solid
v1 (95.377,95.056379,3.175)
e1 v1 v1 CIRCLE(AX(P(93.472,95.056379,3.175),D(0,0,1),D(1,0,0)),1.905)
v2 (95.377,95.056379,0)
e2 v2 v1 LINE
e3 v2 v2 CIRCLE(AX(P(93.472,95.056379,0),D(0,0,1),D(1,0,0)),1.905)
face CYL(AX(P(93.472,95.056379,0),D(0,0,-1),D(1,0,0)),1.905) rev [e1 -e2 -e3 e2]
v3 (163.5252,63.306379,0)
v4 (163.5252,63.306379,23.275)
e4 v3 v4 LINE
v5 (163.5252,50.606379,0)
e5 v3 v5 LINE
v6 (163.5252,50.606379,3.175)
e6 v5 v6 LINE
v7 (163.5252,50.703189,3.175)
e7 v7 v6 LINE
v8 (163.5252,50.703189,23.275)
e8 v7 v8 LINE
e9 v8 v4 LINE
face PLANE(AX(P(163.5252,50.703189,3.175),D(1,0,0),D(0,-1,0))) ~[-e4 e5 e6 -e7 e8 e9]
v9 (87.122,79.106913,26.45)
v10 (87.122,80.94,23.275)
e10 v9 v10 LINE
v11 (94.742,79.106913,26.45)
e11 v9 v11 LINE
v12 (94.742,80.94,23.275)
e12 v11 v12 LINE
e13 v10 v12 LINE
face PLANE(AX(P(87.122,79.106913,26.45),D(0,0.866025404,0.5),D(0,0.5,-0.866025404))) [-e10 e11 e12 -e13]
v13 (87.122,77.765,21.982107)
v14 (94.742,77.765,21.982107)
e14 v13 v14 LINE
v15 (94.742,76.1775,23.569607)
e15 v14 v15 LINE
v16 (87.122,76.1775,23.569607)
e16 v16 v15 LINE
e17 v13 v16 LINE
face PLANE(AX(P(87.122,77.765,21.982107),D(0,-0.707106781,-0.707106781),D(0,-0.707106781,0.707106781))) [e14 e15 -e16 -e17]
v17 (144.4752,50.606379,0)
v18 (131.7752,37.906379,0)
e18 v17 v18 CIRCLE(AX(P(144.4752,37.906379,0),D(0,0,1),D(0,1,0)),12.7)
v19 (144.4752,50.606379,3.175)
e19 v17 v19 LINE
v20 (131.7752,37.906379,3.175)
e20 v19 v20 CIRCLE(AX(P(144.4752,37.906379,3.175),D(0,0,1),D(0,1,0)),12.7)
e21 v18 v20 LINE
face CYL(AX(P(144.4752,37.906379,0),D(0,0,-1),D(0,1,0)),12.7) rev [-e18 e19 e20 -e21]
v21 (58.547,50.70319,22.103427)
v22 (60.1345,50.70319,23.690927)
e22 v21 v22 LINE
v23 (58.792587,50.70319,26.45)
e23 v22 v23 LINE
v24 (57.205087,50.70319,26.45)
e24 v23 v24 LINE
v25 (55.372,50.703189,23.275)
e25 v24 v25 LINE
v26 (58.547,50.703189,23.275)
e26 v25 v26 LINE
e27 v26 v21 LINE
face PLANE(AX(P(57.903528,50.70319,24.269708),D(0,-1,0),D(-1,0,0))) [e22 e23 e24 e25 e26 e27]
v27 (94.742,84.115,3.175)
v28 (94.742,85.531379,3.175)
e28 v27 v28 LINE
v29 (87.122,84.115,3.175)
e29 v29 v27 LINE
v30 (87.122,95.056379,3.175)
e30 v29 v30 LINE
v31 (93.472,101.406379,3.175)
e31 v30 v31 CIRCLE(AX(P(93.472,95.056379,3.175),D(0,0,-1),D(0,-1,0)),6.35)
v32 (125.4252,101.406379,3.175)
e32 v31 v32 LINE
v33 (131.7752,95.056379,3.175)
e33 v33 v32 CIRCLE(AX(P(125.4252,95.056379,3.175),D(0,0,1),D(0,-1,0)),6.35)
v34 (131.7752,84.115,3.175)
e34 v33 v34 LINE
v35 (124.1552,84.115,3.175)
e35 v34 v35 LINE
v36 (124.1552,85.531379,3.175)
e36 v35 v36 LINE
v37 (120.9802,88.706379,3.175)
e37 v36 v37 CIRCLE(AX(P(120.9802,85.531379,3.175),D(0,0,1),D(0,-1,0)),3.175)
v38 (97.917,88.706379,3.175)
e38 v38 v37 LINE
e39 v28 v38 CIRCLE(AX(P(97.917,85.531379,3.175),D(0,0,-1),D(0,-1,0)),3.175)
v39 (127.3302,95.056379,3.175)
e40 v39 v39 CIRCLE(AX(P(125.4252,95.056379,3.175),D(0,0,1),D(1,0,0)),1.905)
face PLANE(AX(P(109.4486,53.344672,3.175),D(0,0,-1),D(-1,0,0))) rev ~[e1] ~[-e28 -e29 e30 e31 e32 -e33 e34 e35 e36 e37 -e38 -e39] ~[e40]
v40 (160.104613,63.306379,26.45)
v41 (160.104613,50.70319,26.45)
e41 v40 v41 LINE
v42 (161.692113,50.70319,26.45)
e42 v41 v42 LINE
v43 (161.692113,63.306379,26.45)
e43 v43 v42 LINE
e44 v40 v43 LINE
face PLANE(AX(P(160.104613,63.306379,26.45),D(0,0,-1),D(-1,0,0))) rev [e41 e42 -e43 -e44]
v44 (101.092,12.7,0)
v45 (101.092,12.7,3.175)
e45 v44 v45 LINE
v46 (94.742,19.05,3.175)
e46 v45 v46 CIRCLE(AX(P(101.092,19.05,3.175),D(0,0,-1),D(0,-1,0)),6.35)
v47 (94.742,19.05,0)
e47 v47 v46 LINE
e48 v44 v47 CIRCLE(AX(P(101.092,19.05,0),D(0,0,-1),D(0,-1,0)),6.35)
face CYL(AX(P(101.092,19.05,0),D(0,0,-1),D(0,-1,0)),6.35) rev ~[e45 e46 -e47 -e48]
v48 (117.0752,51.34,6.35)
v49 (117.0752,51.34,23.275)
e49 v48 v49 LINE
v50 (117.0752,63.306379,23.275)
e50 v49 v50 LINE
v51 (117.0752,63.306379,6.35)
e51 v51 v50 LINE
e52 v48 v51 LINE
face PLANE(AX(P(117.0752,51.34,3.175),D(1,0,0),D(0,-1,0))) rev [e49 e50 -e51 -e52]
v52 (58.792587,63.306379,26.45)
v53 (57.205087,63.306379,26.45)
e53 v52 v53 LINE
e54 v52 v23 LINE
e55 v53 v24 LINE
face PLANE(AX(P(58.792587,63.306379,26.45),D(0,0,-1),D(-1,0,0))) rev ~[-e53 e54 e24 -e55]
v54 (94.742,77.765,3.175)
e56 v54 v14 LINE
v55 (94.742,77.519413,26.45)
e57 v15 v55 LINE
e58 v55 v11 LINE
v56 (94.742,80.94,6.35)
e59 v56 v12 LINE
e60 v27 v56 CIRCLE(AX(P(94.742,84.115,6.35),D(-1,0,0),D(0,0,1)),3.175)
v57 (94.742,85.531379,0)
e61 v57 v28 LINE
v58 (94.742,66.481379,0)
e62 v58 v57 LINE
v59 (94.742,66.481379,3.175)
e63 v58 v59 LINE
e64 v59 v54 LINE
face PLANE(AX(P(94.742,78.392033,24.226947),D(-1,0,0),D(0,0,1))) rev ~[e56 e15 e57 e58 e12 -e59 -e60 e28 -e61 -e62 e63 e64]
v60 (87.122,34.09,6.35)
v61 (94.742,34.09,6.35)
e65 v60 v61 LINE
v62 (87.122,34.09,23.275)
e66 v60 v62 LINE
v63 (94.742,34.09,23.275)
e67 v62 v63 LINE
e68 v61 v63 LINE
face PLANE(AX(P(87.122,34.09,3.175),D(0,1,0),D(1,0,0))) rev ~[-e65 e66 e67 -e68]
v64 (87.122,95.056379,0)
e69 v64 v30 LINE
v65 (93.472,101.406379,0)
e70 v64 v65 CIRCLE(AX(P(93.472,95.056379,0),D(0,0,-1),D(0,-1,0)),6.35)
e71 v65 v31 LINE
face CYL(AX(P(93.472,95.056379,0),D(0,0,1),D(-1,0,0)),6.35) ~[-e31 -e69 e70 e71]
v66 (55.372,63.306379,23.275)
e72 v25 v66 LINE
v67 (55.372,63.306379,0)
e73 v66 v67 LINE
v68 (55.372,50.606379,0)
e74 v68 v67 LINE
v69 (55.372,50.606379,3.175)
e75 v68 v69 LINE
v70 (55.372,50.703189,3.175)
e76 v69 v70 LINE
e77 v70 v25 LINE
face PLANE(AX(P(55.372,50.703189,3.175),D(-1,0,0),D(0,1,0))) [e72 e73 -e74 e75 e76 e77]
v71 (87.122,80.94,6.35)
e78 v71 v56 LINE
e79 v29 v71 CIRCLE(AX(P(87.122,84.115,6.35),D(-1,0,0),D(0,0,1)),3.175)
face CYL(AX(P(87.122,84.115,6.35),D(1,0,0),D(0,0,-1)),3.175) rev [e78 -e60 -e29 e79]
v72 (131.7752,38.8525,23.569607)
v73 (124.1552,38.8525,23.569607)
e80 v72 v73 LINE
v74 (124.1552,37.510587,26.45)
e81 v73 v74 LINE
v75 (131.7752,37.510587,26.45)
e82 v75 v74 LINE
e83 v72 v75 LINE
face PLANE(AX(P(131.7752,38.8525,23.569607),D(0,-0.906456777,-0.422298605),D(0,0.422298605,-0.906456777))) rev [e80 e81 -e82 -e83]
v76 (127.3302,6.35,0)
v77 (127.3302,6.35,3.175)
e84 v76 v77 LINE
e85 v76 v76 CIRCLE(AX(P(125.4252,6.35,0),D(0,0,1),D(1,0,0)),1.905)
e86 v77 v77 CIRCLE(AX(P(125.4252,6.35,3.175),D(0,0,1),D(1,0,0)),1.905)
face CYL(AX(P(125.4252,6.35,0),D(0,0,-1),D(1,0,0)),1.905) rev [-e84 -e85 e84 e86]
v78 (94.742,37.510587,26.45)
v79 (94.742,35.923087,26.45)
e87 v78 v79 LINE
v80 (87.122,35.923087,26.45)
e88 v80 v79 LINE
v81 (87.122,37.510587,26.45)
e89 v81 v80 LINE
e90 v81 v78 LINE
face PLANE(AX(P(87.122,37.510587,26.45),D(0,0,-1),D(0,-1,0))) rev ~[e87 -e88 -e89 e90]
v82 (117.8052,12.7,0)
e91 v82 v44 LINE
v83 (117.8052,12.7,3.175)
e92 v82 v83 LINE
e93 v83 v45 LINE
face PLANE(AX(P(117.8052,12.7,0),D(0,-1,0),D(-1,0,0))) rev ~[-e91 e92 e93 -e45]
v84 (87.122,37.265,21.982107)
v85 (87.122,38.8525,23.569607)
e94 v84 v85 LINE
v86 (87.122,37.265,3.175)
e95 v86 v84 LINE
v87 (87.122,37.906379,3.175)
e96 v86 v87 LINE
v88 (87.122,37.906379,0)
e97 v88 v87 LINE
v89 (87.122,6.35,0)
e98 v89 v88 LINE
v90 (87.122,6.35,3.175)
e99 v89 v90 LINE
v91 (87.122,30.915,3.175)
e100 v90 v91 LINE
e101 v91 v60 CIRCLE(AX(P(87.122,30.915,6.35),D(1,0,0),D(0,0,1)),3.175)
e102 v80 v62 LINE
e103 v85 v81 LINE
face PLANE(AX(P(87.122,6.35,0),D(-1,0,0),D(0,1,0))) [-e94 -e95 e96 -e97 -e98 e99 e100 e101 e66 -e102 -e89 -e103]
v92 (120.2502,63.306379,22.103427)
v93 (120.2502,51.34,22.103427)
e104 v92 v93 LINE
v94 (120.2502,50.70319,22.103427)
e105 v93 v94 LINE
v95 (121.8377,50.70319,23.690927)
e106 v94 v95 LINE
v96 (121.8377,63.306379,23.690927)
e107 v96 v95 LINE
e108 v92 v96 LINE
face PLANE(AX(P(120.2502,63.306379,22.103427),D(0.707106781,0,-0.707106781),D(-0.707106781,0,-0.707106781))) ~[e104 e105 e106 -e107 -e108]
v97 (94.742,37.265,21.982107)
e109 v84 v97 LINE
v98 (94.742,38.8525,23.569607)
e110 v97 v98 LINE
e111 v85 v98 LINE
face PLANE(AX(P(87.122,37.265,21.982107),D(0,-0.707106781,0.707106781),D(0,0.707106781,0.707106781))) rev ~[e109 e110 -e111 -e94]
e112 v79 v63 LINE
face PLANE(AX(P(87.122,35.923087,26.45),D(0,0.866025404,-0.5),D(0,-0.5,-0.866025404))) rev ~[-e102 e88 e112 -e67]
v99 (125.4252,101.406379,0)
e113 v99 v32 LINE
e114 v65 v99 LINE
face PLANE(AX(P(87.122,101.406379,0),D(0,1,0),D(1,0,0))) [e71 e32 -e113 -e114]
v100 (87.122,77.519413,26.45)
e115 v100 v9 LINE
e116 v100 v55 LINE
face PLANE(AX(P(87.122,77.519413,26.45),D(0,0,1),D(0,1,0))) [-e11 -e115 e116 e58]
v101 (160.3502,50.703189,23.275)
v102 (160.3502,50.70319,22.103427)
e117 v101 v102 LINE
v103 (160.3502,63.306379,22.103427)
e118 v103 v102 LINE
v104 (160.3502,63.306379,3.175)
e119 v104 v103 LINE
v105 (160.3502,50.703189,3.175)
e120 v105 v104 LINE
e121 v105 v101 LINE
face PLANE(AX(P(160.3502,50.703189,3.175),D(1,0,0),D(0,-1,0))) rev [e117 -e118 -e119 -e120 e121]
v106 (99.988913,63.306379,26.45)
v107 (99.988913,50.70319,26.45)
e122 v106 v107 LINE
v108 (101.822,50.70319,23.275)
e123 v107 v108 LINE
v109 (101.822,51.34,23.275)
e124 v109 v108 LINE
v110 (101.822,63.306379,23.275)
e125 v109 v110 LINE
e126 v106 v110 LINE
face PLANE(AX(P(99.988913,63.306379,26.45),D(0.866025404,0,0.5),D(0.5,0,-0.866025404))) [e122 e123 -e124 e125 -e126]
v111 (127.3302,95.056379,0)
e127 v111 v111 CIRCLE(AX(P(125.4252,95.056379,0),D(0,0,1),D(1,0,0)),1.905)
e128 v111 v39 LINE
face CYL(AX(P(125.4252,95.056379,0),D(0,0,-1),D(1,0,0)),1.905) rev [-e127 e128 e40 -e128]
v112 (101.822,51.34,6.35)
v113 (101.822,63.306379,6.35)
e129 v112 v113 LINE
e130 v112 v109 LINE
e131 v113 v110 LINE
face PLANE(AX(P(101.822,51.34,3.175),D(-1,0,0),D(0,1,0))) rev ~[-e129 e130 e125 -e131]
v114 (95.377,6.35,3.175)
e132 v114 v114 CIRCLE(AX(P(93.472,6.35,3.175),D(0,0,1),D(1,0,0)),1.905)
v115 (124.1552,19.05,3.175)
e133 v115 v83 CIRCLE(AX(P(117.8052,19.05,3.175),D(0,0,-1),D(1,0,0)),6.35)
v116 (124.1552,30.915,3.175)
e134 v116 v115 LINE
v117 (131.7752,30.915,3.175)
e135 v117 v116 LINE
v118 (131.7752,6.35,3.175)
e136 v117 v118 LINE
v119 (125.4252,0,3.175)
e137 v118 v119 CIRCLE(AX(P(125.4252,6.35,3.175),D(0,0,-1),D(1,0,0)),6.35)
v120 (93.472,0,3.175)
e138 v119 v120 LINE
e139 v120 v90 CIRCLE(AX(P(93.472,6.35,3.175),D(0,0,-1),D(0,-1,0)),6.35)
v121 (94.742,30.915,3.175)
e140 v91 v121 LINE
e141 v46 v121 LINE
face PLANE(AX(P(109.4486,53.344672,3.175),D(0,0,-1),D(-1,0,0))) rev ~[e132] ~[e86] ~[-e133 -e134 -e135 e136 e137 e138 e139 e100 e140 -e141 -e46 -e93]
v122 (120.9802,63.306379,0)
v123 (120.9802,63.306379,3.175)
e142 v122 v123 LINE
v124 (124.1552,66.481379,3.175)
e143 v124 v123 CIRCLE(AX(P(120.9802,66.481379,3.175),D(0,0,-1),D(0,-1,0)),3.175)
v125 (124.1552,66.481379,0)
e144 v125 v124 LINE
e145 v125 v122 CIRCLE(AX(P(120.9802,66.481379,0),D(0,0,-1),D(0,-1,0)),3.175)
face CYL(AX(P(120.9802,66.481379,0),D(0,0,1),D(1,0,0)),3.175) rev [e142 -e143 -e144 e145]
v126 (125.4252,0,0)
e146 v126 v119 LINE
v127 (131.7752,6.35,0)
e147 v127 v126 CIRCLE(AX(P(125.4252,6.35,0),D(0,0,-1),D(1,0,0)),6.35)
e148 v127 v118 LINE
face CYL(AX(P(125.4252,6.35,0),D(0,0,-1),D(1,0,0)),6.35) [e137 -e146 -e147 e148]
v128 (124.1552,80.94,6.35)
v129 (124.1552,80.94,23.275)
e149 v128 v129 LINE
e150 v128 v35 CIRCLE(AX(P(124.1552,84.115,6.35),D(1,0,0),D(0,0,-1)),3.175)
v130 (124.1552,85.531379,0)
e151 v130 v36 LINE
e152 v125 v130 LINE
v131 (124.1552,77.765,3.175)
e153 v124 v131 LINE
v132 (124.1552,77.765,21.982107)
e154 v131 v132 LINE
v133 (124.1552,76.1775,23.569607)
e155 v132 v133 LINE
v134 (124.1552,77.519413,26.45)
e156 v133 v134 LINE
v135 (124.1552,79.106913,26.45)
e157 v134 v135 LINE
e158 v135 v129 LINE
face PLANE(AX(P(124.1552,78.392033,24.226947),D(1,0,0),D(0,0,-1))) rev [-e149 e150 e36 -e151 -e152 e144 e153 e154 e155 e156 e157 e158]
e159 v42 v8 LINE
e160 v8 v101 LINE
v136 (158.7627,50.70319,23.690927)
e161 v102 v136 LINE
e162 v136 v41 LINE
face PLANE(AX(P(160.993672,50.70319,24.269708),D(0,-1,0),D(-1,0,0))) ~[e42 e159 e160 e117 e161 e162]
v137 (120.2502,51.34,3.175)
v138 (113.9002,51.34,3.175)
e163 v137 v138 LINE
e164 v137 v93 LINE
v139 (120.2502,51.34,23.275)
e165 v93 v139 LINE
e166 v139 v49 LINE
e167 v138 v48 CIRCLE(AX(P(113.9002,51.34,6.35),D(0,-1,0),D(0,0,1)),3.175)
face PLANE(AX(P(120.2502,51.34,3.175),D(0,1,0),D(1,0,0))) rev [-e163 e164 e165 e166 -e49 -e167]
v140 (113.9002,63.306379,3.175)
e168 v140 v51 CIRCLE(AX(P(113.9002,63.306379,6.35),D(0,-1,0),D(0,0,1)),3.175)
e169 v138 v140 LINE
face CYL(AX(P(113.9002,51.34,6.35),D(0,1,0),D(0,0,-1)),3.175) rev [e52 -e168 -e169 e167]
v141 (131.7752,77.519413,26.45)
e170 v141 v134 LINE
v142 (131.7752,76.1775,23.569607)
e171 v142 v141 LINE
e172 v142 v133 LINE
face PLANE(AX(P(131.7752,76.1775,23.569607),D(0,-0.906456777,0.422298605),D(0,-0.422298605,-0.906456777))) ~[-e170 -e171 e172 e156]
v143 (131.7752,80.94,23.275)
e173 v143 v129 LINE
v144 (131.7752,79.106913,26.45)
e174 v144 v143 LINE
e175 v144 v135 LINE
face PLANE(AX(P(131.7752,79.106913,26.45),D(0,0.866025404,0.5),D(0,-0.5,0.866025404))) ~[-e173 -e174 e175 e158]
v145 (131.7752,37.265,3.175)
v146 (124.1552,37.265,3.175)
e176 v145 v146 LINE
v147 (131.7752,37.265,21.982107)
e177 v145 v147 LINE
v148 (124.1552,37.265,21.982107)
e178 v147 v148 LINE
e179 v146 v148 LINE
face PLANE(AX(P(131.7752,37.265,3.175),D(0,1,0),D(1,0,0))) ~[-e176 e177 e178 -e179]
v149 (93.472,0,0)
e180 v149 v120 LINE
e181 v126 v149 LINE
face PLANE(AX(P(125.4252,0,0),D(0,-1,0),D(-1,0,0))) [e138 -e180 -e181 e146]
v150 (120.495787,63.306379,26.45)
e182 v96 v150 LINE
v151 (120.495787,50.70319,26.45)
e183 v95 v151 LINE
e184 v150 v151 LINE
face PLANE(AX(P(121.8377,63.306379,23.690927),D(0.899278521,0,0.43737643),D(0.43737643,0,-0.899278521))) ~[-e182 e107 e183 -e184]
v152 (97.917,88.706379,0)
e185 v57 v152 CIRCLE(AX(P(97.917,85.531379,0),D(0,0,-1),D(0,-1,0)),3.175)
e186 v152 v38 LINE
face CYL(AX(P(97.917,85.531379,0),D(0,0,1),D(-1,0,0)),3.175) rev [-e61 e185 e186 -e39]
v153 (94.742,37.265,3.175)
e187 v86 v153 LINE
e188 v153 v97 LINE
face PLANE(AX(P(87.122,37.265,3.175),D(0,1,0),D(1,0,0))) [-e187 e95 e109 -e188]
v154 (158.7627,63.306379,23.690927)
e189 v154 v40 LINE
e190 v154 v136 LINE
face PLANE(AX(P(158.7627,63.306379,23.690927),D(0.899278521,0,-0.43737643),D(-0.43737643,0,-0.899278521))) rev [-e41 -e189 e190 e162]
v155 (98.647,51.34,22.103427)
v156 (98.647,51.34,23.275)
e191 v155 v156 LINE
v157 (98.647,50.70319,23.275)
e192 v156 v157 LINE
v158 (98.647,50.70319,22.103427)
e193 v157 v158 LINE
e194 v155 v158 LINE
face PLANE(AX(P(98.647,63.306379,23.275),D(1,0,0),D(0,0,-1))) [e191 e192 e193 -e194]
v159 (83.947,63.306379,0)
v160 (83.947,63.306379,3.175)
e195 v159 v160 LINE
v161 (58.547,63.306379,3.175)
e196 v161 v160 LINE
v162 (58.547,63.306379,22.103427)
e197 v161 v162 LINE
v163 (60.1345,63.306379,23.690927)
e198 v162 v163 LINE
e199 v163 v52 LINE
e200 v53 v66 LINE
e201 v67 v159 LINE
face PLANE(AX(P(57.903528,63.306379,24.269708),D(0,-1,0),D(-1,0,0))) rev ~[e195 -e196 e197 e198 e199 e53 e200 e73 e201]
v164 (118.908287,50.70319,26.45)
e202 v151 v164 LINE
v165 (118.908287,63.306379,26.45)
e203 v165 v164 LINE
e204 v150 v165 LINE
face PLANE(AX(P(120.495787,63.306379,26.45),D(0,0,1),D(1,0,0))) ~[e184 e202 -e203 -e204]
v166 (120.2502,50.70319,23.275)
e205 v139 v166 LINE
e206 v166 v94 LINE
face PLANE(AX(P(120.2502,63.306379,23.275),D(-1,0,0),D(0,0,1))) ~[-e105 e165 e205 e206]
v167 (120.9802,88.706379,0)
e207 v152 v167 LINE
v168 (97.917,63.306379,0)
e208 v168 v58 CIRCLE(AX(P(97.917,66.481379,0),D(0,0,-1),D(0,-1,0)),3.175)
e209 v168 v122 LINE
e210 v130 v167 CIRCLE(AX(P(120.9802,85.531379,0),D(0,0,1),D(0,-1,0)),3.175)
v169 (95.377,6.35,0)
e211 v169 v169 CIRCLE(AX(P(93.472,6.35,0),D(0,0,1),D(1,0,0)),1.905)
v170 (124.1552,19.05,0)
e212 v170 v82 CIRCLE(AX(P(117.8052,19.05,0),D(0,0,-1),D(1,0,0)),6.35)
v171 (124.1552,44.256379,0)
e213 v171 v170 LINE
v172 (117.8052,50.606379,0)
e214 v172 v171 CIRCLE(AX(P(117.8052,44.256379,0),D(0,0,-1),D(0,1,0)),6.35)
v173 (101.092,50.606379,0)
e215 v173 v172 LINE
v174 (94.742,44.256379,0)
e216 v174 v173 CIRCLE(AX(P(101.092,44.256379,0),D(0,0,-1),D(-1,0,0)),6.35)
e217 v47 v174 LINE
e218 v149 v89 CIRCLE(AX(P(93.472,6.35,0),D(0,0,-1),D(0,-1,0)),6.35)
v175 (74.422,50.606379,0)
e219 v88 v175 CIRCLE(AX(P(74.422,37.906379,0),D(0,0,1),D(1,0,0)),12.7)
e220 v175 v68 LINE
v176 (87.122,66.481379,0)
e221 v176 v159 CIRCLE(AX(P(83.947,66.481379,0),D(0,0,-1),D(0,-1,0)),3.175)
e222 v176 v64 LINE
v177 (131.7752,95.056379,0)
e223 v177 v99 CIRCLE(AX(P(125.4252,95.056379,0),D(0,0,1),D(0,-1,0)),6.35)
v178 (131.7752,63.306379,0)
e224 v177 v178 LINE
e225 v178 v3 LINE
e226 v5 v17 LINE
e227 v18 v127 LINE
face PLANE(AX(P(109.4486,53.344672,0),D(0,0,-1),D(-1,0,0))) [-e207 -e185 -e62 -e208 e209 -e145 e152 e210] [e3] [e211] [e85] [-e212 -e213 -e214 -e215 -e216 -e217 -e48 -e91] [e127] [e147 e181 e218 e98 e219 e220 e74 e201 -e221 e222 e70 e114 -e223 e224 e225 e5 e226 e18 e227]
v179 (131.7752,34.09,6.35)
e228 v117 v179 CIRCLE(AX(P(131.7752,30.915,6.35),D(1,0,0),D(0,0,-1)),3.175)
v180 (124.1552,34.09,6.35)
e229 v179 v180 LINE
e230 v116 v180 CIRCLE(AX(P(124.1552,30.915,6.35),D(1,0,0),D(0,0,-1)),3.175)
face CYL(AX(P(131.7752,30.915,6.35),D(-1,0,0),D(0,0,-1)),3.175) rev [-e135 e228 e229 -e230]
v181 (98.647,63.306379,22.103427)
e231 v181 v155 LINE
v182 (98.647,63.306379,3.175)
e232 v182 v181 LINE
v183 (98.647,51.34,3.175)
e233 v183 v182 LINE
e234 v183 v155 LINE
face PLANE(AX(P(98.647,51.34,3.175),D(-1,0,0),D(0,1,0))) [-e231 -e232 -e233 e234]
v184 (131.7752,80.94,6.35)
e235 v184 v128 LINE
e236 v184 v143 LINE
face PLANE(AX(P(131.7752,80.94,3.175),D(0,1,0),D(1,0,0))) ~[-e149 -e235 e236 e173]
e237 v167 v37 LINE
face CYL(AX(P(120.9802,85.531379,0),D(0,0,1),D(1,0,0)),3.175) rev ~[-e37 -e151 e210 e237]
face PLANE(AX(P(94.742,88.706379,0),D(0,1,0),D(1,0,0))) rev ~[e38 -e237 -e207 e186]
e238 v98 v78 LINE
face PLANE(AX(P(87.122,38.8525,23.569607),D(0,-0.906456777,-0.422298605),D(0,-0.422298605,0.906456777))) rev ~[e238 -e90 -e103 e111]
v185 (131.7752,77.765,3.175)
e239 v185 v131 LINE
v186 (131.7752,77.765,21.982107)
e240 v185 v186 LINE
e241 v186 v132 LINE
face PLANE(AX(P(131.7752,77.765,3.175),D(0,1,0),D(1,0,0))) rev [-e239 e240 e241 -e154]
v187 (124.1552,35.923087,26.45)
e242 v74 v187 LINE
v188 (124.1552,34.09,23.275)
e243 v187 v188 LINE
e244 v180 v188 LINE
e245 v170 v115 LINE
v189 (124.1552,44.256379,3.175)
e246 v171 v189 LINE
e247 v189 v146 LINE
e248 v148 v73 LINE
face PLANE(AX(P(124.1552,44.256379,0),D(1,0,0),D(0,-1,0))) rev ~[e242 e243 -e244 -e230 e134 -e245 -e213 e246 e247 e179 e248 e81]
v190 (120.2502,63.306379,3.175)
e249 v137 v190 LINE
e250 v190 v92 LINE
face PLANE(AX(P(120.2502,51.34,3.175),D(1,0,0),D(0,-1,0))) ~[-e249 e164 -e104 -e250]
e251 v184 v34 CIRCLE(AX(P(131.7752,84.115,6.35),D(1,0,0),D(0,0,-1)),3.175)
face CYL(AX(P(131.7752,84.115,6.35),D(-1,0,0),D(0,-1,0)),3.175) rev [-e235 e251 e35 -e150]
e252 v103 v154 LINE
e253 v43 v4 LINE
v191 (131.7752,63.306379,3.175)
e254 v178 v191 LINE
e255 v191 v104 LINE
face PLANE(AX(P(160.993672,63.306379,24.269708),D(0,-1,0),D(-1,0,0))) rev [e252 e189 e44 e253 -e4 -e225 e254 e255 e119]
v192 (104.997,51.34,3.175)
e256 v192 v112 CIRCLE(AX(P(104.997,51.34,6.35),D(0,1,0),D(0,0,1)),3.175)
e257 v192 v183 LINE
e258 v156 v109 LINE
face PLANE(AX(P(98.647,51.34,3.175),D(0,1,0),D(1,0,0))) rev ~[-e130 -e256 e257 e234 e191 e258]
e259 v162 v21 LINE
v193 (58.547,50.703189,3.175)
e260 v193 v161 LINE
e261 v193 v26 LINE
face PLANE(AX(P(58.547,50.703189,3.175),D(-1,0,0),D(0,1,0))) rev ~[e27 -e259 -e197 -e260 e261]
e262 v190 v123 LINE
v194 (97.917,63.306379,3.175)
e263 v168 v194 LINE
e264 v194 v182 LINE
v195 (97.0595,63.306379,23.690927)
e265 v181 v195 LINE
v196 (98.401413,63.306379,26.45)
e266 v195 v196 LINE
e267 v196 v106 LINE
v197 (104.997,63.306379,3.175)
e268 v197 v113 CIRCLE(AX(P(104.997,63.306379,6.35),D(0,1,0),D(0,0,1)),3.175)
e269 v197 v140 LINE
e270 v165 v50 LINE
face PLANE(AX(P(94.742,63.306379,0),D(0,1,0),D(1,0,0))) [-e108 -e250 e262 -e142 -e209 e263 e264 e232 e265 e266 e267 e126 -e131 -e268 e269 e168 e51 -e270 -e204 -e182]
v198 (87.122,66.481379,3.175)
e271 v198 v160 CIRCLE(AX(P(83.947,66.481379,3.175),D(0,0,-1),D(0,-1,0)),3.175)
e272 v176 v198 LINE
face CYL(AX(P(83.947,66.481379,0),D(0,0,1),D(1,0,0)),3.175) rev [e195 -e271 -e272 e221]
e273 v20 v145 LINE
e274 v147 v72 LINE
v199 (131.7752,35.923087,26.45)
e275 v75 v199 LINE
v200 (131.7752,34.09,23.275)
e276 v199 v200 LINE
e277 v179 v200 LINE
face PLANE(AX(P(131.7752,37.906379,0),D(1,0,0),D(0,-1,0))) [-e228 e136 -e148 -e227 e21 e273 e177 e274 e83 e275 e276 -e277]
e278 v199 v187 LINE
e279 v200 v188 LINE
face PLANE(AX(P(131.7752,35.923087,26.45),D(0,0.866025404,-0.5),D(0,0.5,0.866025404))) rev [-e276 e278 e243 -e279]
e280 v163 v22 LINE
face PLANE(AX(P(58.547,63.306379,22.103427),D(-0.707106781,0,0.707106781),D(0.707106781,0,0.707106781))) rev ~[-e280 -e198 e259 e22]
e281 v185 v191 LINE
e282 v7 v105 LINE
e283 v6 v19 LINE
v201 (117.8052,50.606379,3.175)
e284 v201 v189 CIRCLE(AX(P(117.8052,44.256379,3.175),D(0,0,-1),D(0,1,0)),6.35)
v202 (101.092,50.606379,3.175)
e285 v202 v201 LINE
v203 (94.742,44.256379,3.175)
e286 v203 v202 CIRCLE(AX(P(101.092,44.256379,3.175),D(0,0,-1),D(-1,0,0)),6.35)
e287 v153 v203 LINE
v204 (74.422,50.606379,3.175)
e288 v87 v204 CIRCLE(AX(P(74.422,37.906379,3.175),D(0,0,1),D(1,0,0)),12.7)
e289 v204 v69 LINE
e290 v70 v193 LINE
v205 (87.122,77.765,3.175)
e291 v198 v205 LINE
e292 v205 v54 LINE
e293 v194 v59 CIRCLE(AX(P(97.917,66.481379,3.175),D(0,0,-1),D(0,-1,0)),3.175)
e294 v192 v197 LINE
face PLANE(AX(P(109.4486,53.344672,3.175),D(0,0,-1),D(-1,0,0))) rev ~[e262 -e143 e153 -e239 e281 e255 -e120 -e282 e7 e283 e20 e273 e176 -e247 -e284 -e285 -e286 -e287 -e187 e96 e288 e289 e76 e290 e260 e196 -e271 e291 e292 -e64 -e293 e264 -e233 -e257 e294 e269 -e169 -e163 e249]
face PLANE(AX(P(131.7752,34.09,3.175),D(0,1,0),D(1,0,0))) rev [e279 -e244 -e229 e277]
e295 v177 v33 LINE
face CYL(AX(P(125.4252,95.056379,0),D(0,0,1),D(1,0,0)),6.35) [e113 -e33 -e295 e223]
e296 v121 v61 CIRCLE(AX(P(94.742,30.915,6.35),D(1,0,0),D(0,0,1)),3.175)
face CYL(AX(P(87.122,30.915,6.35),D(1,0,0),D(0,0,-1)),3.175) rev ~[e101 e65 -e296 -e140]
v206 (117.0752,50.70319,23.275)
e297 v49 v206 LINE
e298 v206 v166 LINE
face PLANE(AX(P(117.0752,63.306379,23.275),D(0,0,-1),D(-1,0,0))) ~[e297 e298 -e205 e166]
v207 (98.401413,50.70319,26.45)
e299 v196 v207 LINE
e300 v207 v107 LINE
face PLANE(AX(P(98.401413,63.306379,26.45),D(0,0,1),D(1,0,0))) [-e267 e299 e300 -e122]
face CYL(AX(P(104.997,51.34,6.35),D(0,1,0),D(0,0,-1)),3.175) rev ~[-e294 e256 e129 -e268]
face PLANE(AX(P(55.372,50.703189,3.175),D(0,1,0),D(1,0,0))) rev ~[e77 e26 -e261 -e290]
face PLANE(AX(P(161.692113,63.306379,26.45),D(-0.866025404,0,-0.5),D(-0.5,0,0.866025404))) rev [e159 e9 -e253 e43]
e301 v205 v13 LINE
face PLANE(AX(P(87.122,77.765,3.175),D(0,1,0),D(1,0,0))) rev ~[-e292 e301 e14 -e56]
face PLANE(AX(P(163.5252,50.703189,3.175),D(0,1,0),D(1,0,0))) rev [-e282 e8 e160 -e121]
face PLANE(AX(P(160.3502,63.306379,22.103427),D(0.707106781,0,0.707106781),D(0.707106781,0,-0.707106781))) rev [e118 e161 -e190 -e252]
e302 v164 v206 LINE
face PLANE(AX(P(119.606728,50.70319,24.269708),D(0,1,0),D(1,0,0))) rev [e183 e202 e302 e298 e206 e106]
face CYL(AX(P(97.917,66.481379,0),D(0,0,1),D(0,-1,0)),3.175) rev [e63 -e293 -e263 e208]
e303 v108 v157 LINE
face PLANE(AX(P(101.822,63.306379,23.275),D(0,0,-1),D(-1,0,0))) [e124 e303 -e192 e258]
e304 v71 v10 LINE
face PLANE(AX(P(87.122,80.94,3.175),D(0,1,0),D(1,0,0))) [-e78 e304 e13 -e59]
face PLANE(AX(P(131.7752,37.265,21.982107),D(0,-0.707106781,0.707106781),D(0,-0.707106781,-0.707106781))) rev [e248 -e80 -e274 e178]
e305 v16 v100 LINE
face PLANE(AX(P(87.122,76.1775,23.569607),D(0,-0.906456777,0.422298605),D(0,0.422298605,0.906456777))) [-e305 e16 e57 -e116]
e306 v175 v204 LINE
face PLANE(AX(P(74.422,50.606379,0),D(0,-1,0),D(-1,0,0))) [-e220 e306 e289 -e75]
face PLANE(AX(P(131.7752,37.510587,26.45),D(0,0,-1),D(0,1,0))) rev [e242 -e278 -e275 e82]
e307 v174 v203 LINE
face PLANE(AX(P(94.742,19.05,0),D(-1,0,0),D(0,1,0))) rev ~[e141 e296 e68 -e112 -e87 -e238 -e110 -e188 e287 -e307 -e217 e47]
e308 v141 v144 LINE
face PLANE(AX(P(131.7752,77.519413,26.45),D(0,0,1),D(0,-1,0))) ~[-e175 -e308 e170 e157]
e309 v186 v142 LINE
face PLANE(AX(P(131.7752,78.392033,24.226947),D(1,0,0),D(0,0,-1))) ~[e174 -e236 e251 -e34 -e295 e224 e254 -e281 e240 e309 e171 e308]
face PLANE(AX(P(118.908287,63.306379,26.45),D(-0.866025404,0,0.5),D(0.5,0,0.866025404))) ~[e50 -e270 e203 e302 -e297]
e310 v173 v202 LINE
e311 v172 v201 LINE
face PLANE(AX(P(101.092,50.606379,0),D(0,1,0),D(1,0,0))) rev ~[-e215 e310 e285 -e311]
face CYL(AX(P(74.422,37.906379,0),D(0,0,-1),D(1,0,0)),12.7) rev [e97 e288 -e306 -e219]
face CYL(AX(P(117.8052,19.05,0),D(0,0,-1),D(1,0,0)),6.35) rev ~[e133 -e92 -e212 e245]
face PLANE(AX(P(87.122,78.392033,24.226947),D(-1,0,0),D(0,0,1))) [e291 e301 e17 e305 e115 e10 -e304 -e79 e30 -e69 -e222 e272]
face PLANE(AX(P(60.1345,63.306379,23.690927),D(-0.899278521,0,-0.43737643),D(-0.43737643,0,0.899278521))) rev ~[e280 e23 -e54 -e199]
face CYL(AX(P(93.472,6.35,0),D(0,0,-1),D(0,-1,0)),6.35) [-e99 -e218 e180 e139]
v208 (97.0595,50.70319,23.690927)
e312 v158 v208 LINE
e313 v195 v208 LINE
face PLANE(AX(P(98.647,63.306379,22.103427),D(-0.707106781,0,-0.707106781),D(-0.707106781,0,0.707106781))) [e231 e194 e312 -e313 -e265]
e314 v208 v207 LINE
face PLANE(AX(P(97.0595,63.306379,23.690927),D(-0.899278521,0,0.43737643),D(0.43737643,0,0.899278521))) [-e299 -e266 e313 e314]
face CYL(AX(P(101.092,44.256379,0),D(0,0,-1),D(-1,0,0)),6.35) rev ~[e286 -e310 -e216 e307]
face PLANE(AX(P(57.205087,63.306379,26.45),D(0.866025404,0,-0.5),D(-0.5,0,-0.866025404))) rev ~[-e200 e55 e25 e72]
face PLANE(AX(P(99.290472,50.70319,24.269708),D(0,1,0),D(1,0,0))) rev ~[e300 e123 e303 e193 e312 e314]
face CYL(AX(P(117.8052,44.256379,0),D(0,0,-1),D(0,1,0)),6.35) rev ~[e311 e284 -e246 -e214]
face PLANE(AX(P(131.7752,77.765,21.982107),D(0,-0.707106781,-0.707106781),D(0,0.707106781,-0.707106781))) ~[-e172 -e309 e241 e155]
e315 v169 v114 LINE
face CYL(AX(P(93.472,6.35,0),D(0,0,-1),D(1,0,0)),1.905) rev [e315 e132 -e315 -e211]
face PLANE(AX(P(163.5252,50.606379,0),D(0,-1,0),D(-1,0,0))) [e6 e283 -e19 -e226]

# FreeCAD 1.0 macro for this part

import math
import FreeCAD as App
import Part
import Sketcher
Q = App.Units.Quantity


def edges_at(feature, points):
    """Names of the edges that pass closest to the given points."""
    edges = feature.Shape.Edges
    near = lambda p: min(range(len(edges)), key=lambda i: edges[i].distToShape(Part.Vertex(*p))[0])
    return sorted({f"Edge{near(p) + 1}" for p in points})

doc = App.newDocument("Part")
body = doc.addObject("PartDesign::Body", "Body")

# Sketch on XY plane
sketch1 = doc.addObject("Sketcher::SketchObject", "Sketch")
body.addObject(sketch1)
sketch1.AttachmentSupport = (doc.XY_Plane, [""])
sketch1.MapMode = "FlatFace"
sketch1.addGeometry(Part.LineSegment(App.Vector(131.8, 101.4, 0), App.Vector(87.1, 101.4, 0)), False)
sketch1.addGeometry(Part.LineSegment(App.Vector(87.1, 101.4, 0), App.Vector(87.1, 63.3, 0)), False)
sketch1.addGeometry(Part.LineSegment(App.Vector(87.1, 63.3, 0), App.Vector(55.4, 63.3, 0)), False)
sketch1.addGeometry(Part.LineSegment(App.Vector(55.4, 63.3, 0), App.Vector(55.4, 50.6, 0)), False)
sketch1.addGeometry(Part.LineSegment(App.Vector(55.4, 50.6, 0), App.Vector(74.4, 50.6, 0)), False)
sketch1.addGeometry(Part.ArcOfCircle(Part.Circle(App.Vector(74.4, 37.9, 0), App.Vector(0, 0, 1), 12.7), math.radians(0), math.radians(90)), False)
sketch1.addGeometry(Part.LineSegment(App.Vector(87.1, 37.9, 0), App.Vector(87.1, 6.3, 0)), False)
sketch1.addGeometry(Part.ArcOfCircle(Part.Circle(App.Vector(93.5, 6.3, 0), App.Vector(0, 0, 1), 6.3), math.radians(180), math.radians(270)), False)
sketch1.addGeometry(Part.LineSegment(App.Vector(93.5, 0, 0), App.Vector(125.4, 0, 0)), False)
sketch1.addGeometry(Part.ArcOfCircle(Part.Circle(App.Vector(125.4, 6.3, 0), App.Vector(0, 0, 1), 6.3), math.radians(-90), math.radians(0)), False)
sketch1.addGeometry(Part.LineSegment(App.Vector(131.8, 6.3, 0), App.Vector(131.8, 37.9, 0)), False)
sketch1.addGeometry(Part.ArcOfCircle(Part.Circle(App.Vector(144.5, 37.9, 0), App.Vector(0, 0, 1), 12.7), math.radians(90), math.radians(180)), False)
sketch1.addGeometry(Part.LineSegment(App.Vector(144.5, 50.6, 0), App.Vector(163.5, 50.6, 0)), False)
sketch1.addGeometry(Part.LineSegment(App.Vector(163.5, 50.6, 0), App.Vector(163.5, 63.3, 0)), False)
sketch1.addGeometry(Part.LineSegment(App.Vector(163.5, 63.3, 0), App.Vector(131.8, 63.3, 0)), False)
sketch1.addGeometry(Part.LineSegment(App.Vector(131.8, 63.3, 0), App.Vector(131.8, 101.4, 0)), False)
sketch1.addGeometry(Part.Circle(App.Vector(125.4, 6.3, 0), App.Vector(0, 0, 1), 1.9), False)
sketch1.addGeometry(Part.LineSegment(App.Vector(101.1, 50.6, 0), App.Vector(117.8, 50.6, 0)), False)
sketch1.addGeometry(Part.ArcOfCircle(Part.Circle(App.Vector(117.8, 44.3, 0), App.Vector(0, 0, 1), 6.3), math.radians(0), math.radians(90)), False)
sketch1.addGeometry(Part.LineSegment(App.Vector(124.2, 44.3, 0), App.Vector(124.2, 19.1, 0)), False)
sketch1.addGeometry(Part.ArcOfCircle(Part.Circle(App.Vector(117.8, 19, 0), App.Vector(0, 0, 1), 6.3), math.radians(-90), math.radians(0)), False)
sketch1.addGeometry(Part.LineSegment(App.Vector(117.8, 12.7, 0), App.Vector(101.1, 12.7, 0)), False)
sketch1.addGeometry(Part.ArcOfCircle(Part.Circle(App.Vector(101.1, 19, 0), App.Vector(0, 0, 1), 6.3), math.radians(180), math.radians(270)), False)
sketch1.addGeometry(Part.LineSegment(App.Vector(94.7, 19.1, 0), App.Vector(94.7, 44.3, 0)), False)
sketch1.addGeometry(Part.ArcOfCircle(Part.Circle(App.Vector(101.1, 44.3, 0), App.Vector(0, 0, 1), 6.3), math.radians(90), math.radians(180)), False)
sketch1.addGeometry(Part.Circle(App.Vector(93.5, 6.3, 0), App.Vector(0, 0, 1), 1.9), False)
sketch1.addGeometry(Part.Circle(App.Vector(125.4, 95.1, 0), App.Vector(0, 0, 1), 1.9), False)
sketch1.addGeometry(Part.LineSegment(App.Vector(94.7, 63.3, 0), App.Vector(94.7, 88.7, 0)), False)
sketch1.addGeometry(Part.LineSegment(App.Vector(94.7, 88.7, 0), App.Vector(124.2, 88.7, 0)), False)
sketch1.addGeometry(Part.LineSegment(App.Vector(124.2, 88.7, 0), App.Vector(124.2, 63.3, 0)), False)
sketch1.addGeometry(Part.LineSegment(App.Vector(124.2, 63.3, 0), App.Vector(94.7, 63.3, 0)), False)
sketch1.addGeometry(Part.Circle(App.Vector(93.5, 95.1, 0), App.Vector(0, 0, 1), 1.9), False)
sketch1.addConstraint(Sketcher.Constraint("Coincident", 0, 2, 1, 1))
sketch1.addConstraint(Sketcher.Constraint("Coincident", 1, 2, 2, 1))
sketch1.addConstraint(Sketcher.Constraint("Coincident", 2, 2, 3, 1))
sketch1.addConstraint(Sketcher.Constraint("Coincident", 3, 2, 4, 1))
sketch1.addConstraint(Sketcher.Constraint("Tangent", 4, 2, 5, 2))
sketch1.addConstraint(Sketcher.Constraint("Tangent", 5, 1, 6, 1))
sketch1.addConstraint(Sketcher.Constraint("Tangent", 6, 2, 7, 1))
sketch1.addConstraint(Sketcher.Constraint("Tangent", 7, 2, 8, 1))
sketch1.addConstraint(Sketcher.Constraint("Tangent", 8, 2, 9, 1))
sketch1.addConstraint(Sketcher.Constraint("Tangent", 9, 2, 10, 1))
sketch1.addConstraint(Sketcher.Constraint("Tangent", 10, 2, 11, 2))
sketch1.addConstraint(Sketcher.Constraint("Tangent", 11, 1, 12, 1))
sketch1.addConstraint(Sketcher.Constraint("Coincident", 12, 2, 13, 1))
sketch1.addConstraint(Sketcher.Constraint("Coincident", 13, 2, 14, 1))
sketch1.addConstraint(Sketcher.Constraint("Coincident", 14, 2, 15, 1))
sketch1.addConstraint(Sketcher.Constraint("Coincident", 15, 2, 0, 1))
sketch1.addConstraint(Sketcher.Constraint("Tangent", 17, 2, 18, 2))
sketch1.addConstraint(Sketcher.Constraint("Tangent", 18, 1, 19, 1))
sketch1.addConstraint(Sketcher.Constraint("Tangent", 19, 2, 20, 2))
sketch1.addConstraint(Sketcher.Constraint("Tangent", 20, 1, 21, 1))
sketch1.addConstraint(Sketcher.Constraint("Tangent", 21, 2, 22, 2))
sketch1.addConstraint(Sketcher.Constraint("Tangent", 22, 1, 23, 1))
sketch1.addConstraint(Sketcher.Constraint("Tangent", 23, 2, 24, 2))
sketch1.addConstraint(Sketcher.Constraint("Tangent", 24, 1, 17, 1))
sketch1.addConstraint(Sketcher.Constraint("Coincident", 27, 2, 28, 1))
sketch1.addConstraint(Sketcher.Constraint("Coincident", 28, 2, 29, 1))
sketch1.addConstraint(Sketcher.Constraint("Coincident", 29, 2, 30, 1))
sketch1.addConstraint(Sketcher.Constraint("Coincident", 30, 2, 27, 1))
sketch1.addConstraint(Sketcher.Constraint("Horizontal", 0))
sketch1.addConstraint(Sketcher.Constraint("Vertical", 1))
sketch1.addConstraint(Sketcher.Constraint("Horizontal", 2))
sketch1.addConstraint(Sketcher.Constraint("Vertical", 3))
sketch1.addConstraint(Sketcher.Constraint("Horizontal", 4))
sketch1.addConstraint(Sketcher.Constraint("Vertical", 6))
sketch1.addConstraint(Sketcher.Constraint("Horizontal", 8))
sketch1.addConstraint(Sketcher.Constraint("Vertical", 10))
sketch1.addConstraint(Sketcher.Constraint("Horizontal", 12))
sketch1.addConstraint(Sketcher.Constraint("Vertical", 13))
sketch1.addConstraint(Sketcher.Constraint("Horizontal", 14))
sketch1.addConstraint(Sketcher.Constraint("Vertical", 15))
sketch1.addConstraint(Sketcher.Constraint("Horizontal", 17))
sketch1.addConstraint(Sketcher.Constraint("Vertical", 19))
sketch1.addConstraint(Sketcher.Constraint("Horizontal", 21))
sketch1.addConstraint(Sketcher.Constraint("Vertical", 23))
sketch1.addConstraint(Sketcher.Constraint("Vertical", 27))
sketch1.addConstraint(Sketcher.Constraint("Horizontal", 28))
sketch1.addConstraint(Sketcher.Constraint("Vertical", 29))
sketch1.addConstraint(Sketcher.Constraint("Horizontal", 30))
sketch1.addConstraint(Sketcher.Constraint("Coincident", 16, 3, 9, 3))
sketch1.addConstraint(Sketcher.Constraint("Coincident", 25, 3, 7, 3))
sketch1.addConstraint(Sketcher.Constraint("Equal", 7, 9))
sketch1.addConstraint(Sketcher.Constraint("Equal", 5, 11))
sketch1.addConstraint(Sketcher.Constraint("Equal", 9, 18))
sketch1.addConstraint(Sketcher.Constraint("Equal", 18, 20))
sketch1.addConstraint(Sketcher.Constraint("Equal", 20, 22))
sketch1.addConstraint(Sketcher.Constraint("Equal", 22, 24))
sketch1.addConstraint(Sketcher.Constraint("Equal", 16, 25))
sketch1.addConstraint(Sketcher.Constraint("Equal", 25, 26))
sketch1.addConstraint(Sketcher.Constraint("Equal", 26, 31))
sketch1.addConstraint(Sketcher.Constraint("PointOnObject", 7, 2, -1))
sketch1.addConstraint(Sketcher.Constraint("Horizontal", 5, 3, 11, 3))
sketch1.addConstraint(Sketcher.Constraint("Horizontal", 26, 3, 31, 3))
sketch1.addConstraint(Sketcher.Constraint("Horizontal", 2, 2, 13, 2))
sketch1.addConstraint(Sketcher.Constraint("Horizontal", 12, 2, 17, 2))
sketch1.addConstraint(Sketcher.Constraint("Horizontal", 14, 2, 29, 2))
sketch1.addConstraint(Sketcher.Constraint("Vertical", 16, 3, 26, 3))
sketch1.addConstraint(Sketcher.Constraint("Vertical", 25, 3, 31, 3))
sketch1.addConstraint(Sketcher.Constraint("Vertical", 1, 2, 5, 1))
sketch1.addConstraint(Sketcher.Constraint("Vertical", 10, 2, 14, 2))
sketch1.addConstraint(Sketcher.Constraint("Vertical", 23, 2, 27, 2))
sketch1.addConstraint(Sketcher.Constraint("Vertical", 19, 2, 28, 2))
sketch1.addConstraint(Sketcher.Constraint("Equal", 4, 12))
sketch1.addConstraint(Sketcher.Constraint("Radius", 5, Q("0.5 in")))
sketch1.addConstraint(Sketcher.Constraint("Diameter", 16, Q("0.15 in")))
sketch1.addConstraint(Sketcher.Constraint("DistanceY", 27, 1, 27, 2, Q("1 in")))
sketch1.addConstraint(Sketcher.Constraint("Radius", 7, Q("0.25 in")))
sketch1.addConstraint(Sketcher.Constraint("DistanceY", 1, 2, 1, 1, Q("1.5 in")))
sketch1.addConstraint(Sketcher.Constraint("DistanceY", 3, 2, 3, 1, Q("0.5 in")))
sketch1.addConstraint(Sketcher.Constraint("DistanceY", 18, 3, 26, 3, Q("2 in")))
sketch1.addConstraint(Sketcher.Constraint("DistanceX", 2, 2, 2, 1, Q("1.25 in")))
sketch1.addConstraint(Sketcher.Constraint("DistanceY", -1, 1, 20, 1, Q("0.5 in")))
sketch1.addConstraint(Sketcher.Constraint("DistanceX", 18, 3, 16, 3, Q("0.3 in")))
sketch1.addConstraint(Sketcher.Constraint("DistanceX", 7, 3, 22, 3, Q("0.3 in")))
sketch1.addConstraint(Sketcher.Constraint("DistanceX", 0, 2, 0, 1, Q("1.758 in")))
sketch1.addConstraint(Sketcher.Constraint("DistanceX", -1, 1, 5, 3, Q("2.93 in")))
sketch1.addConstraint(Sketcher.Constraint("DistanceY", 6, 2, 6, 1, 31.556379))
pad1 = doc.addObject("PartDesign::Pad", "Pad")
body.addObject(pad1)
pad1.Profile = sketch1
pad1.Length = Q("0.125 in")

# Sketch on XY plane
sketch2 = doc.addObject("Sketcher::SketchObject", "Sketch001")
body.addObject(sketch2)
sketch2.AttachmentSupport = (doc.XY_Plane, [""])
sketch2.MapMode = "FlatFace"
sketch2.AttachmentOffset = App.Placement(App.Vector(0, 0, 0.125 * 25.4), App.Rotation())
sketch2.addGeometry(Part.LineSegment(App.Vector(55.4, 63.3, 0), App.Vector(55.4, 50.7, 0)), False)
sketch2.addGeometry(Part.LineSegment(App.Vector(55.4, 50.7, 0), App.Vector(58.5, 50.7, 0)), False)
sketch2.addGeometry(Part.LineSegment(App.Vector(58.5, 50.7, 0), App.Vector(58.5, 63.3, 0)), False)
sketch2.addGeometry(Part.LineSegment(App.Vector(58.5, 63.3, 0), App.Vector(55.4, 63.3, 0)), False)
sketch2.addGeometry(Part.LineSegment(App.Vector(98.6, 63.3, 0), App.Vector(98.6, 51.3, 0)), False)
sketch2.addGeometry(Part.LineSegment(App.Vector(98.6, 51.3, 0), App.Vector(101.8, 51.3, 0)), False)
sketch2.addGeometry(Part.LineSegment(App.Vector(101.8, 51.3, 0), App.Vector(101.8, 63.3, 0)), False)
sketch2.addGeometry(Part.LineSegment(App.Vector(101.8, 63.3, 0), App.Vector(98.6, 63.3, 0)), False)
sketch2.addGeometry(Part.LineSegment(App.Vector(87.1, 37.3, 0), App.Vector(87.1, 34.1, 0)), False)
sketch2.addGeometry(Part.LineSegment(App.Vector(87.1, 34.1, 0), App.Vector(94.7, 34.1, 0)), False)
sketch2.addGeometry(Part.LineSegment(App.Vector(94.7, 34.1, 0), App.Vector(94.7, 37.3, 0)), False)
sketch2.addGeometry(Part.LineSegment(App.Vector(94.7, 37.3, 0), App.Vector(87.1, 37.3, 0)), False)
sketch2.addGeometry(Part.LineSegment(App.Vector(87.1, 80.9, 0), App.Vector(87.1, 77.8, 0)), False)
sketch2.addGeometry(Part.LineSegment(App.Vector(87.1, 77.8, 0), App.Vector(94.7, 77.8, 0)), False)
sketch2.addGeometry(Part.LineSegment(App.Vector(94.7, 77.8, 0), App.Vector(94.7, 80.9, 0)), False)
sketch2.addGeometry(Part.LineSegment(App.Vector(94.7, 80.9, 0), App.Vector(87.1, 80.9, 0)), False)
sketch2.addConstraint(Sketcher.Constraint("Coincident", 0, 2, 1, 1))
sketch2.addConstraint(Sketcher.Constraint("Coincident", 1, 2, 2, 1))
sketch2.addConstraint(Sketcher.Constraint("Coincident", 2, 2, 3, 1))
sketch2.addConstraint(Sketcher.Constraint("Coincident", 3, 2, 0, 1))
sketch2.addConstraint(Sketcher.Constraint("Coincident", 4, 2, 5, 1))
sketch2.addConstraint(Sketcher.Constraint("Coincident", 5, 2, 6, 1))
sketch2.addConstraint(Sketcher.Constraint("Coincident", 6, 2, 7, 1))
sketch2.addConstraint(Sketcher.Constraint("Coincident", 7, 2, 4, 1))
sketch2.addConstraint(Sketcher.Constraint("Coincident", 8, 2, 9, 1))
sketch2.addConstraint(Sketcher.Constraint("Coincident", 9, 2, 10, 1))
sketch2.addConstraint(Sketcher.Constraint("Coincident", 10, 2, 11, 1))
sketch2.addConstraint(Sketcher.Constraint("Coincident", 11, 2, 8, 1))
sketch2.addConstraint(Sketcher.Constraint("Coincident", 12, 2, 13, 1))
sketch2.addConstraint(Sketcher.Constraint("Coincident", 13, 2, 14, 1))
sketch2.addConstraint(Sketcher.Constraint("Coincident", 14, 2, 15, 1))
sketch2.addConstraint(Sketcher.Constraint("Coincident", 15, 2, 12, 1))
sketch2.addConstraint(Sketcher.Constraint("Vertical", 0))
sketch2.addConstraint(Sketcher.Constraint("Horizontal", 1))
sketch2.addConstraint(Sketcher.Constraint("Vertical", 2))
sketch2.addConstraint(Sketcher.Constraint("Horizontal", 3))
sketch2.addConstraint(Sketcher.Constraint("Vertical", 4))
sketch2.addConstraint(Sketcher.Constraint("Horizontal", 5))
sketch2.addConstraint(Sketcher.Constraint("Vertical", 6))
sketch2.addConstraint(Sketcher.Constraint("Horizontal", 7))
sketch2.addConstraint(Sketcher.Constraint("Vertical", 8))
sketch2.addConstraint(Sketcher.Constraint("Horizontal", 9))
sketch2.addConstraint(Sketcher.Constraint("Vertical", 10))
sketch2.addConstraint(Sketcher.Constraint("Horizontal", 11))
sketch2.addConstraint(Sketcher.Constraint("Vertical", 12))
sketch2.addConstraint(Sketcher.Constraint("Horizontal", 13))
sketch2.addConstraint(Sketcher.Constraint("Vertical", 14))
sketch2.addConstraint(Sketcher.Constraint("Horizontal", 15))
sketch2.addConstraint(Sketcher.Constraint("Horizontal", 3, 2, 6, 2))
sketch2.addConstraint(Sketcher.Constraint("Vertical", 11, 2, 12, 2))
sketch2.addConstraint(Sketcher.Constraint("Vertical", 10, 2, 13, 2))
sketch2.addConstraint(Sketcher.Constraint("Equal", 3, 5))
sketch2.addConstraint(Sketcher.Constraint("Equal", 7, 8))
sketch2.addConstraint(Sketcher.Constraint("Equal", 10, 12))
sketch2.addConstraint(Sketcher.Constraint("DistanceX", 9, 1, 9, 2, Q("0.3 in")))
sketch2.addConstraint(Sketcher.Constraint("DistanceX", 1, 1, 1, 2, Q("0.125 in")))
sketch2.addConstraint(Sketcher.Constraint("DistanceX", -1, 1, 0, 2, Q("2.18 in")))
sketch2.addConstraint(Sketcher.Constraint("DistanceX", -1, 1, 8, 2, Q("3.43 in")))
sketch2.addConstraint(Sketcher.Constraint("DistanceY", 0, 2, 0, 1, 12.603189))
sketch2.addConstraint(Sketcher.Constraint("DistanceY", 4, 2, 4, 1, 11.966379))
sketch2.addConstraint(Sketcher.Constraint("DistanceX", -1, 1, 4, 2, 98.647))
sketch2.addConstraint(Sketcher.Constraint("DistanceY", -1, 1, 4, 2, 51.34))
sketch2.addConstraint(Sketcher.Constraint("DistanceY", -1, 1, 8, 2, 34.09))
sketch2.addConstraint(Sketcher.Constraint("DistanceY", -1, 1, 12, 2, 77.765))
pad2 = doc.addObject("PartDesign::Pad", "Pad001")
body.addObject(pad2)
pad2.Profile = sketch2
pad2.Length = 20.1

# Sketch on XZ plane
sketch3 = doc.addObject("Sketcher::SketchObject", "Sketch002")
body.addObject(sketch3)
sketch3.AttachmentSupport = (doc.XZ_Plane, [""])
sketch3.MapMode = "FlatFace"
sketch3.AttachmentOffset = App.Placement(App.Vector(0, 0, -63.306379), App.Rotation())
sketch3.addGeometry(Part.LineSegment(App.Vector(60.1, 23.7, 0), App.Vector(58.5, 22.1, 0)), False)
sketch3.addGeometry(Part.LineSegment(App.Vector(58.5, 22.1, 0), App.Vector(58.5, 23.3, 0)), False)
sketch3.addGeometry(Part.LineSegment(App.Vector(58.5, 23.3, 0), App.Vector(55.4, 23.3, 0)), False)
sketch3.addGeometry(Part.LineSegment(App.Vector(55.4, 23.3, 0), App.Vector(57.2, 26.4, 0)), False)
sketch3.addGeometry(Part.LineSegment(App.Vector(57.2, 26.4, 0), App.Vector(58.8, 26.4, 0)), False)
sketch3.addGeometry(Part.LineSegment(App.Vector(58.8, 26.4, 0), App.Vector(60.1, 23.7, 0)), False)
sketch3.addGeometry(Part.LineSegment(App.Vector(98.6, 22.1, 0), App.Vector(97.1, 23.7, 0)), False)
sketch3.addGeometry(Part.LineSegment(App.Vector(97.1, 23.7, 0), App.Vector(98.4, 26.4, 0)), False)
sketch3.addGeometry(Part.LineSegment(App.Vector(98.4, 26.4, 0), App.Vector(100, 26.4, 0)), False)
sketch3.addGeometry(Part.LineSegment(App.Vector(100, 26.4, 0), App.Vector(101.8, 23.3, 0)), False)
sketch3.addGeometry(Part.LineSegment(App.Vector(101.8, 23.3, 0), App.Vector(98.6, 23.3, 0)), False)
sketch3.addGeometry(Part.LineSegment(App.Vector(98.6, 23.3, 0), App.Vector(98.6, 22.1, 0)), False)
sketch3.addConstraint(Sketcher.Constraint("Coincident", 0, 2, 1, 1))
sketch3.addConstraint(Sketcher.Constraint("Coincident", 1, 2, 2, 1))
sketch3.addConstraint(Sketcher.Constraint("Coincident", 2, 2, 3, 1))
sketch3.addConstraint(Sketcher.Constraint("Coincident", 3, 2, 4, 1))
sketch3.addConstraint(Sketcher.Constraint("Coincident", 4, 2, 5, 1))
sketch3.addConstraint(Sketcher.Constraint("Coincident", 5, 2, 0, 1))
sketch3.addConstraint(Sketcher.Constraint("Coincident", 6, 2, 7, 1))
sketch3.addConstraint(Sketcher.Constraint("Coincident", 7, 2, 8, 1))
sketch3.addConstraint(Sketcher.Constraint("Coincident", 8, 2, 9, 1))
sketch3.addConstraint(Sketcher.Constraint("Coincident", 9, 2, 10, 1))
sketch3.addConstraint(Sketcher.Constraint("Coincident", 10, 2, 11, 1))
sketch3.addConstraint(Sketcher.Constraint("Coincident", 11, 2, 6, 1))
sketch3.addConstraint(Sketcher.Constraint("Vertical", 1))
sketch3.addConstraint(Sketcher.Constraint("Horizontal", 2))
sketch3.addConstraint(Sketcher.Constraint("Horizontal", 4))
sketch3.addConstraint(Sketcher.Constraint("Horizontal", 8))
sketch3.addConstraint(Sketcher.Constraint("Horizontal", 10))
sketch3.addConstraint(Sketcher.Constraint("Vertical", 11))
sketch3.addConstraint(Sketcher.Constraint("Perpendicular", 0, 6))
sketch3.addConstraint(Sketcher.Constraint("Horizontal", 5, 2, 6, 2))
sketch3.addConstraint(Sketcher.Constraint("Horizontal", 4, 2, 7, 2))
sketch3.addConstraint(Sketcher.Constraint("Horizontal", 2, 2, 9, 2))
sketch3.addConstraint(Sketcher.Constraint("Horizontal", 0, 2, 11, 2))
sketch3.addConstraint(Sketcher.Constraint("Equal", 4, 8))
sketch3.addConstraint(Sketcher.Constraint("Equal", 2, 10))
sketch3.addConstraint(Sketcher.Constraint("Equal", 0, 6))
sketch3.addConstraint(Sketcher.Constraint("Equal", 5, 7))
sketch3.addConstraint(Sketcher.Constraint("Angle", 3, Q("60 deg")))
sketch3.addConstraint(Sketcher.Constraint("DistanceX", 2, 2, 2, 1, Q("0.125 in")))
sketch3.addConstraint(Sketcher.Constraint("DistanceX", 4, 1, 4, 2, Q("0.0625 in")))
sketch3.addConstraint(Sketcher.Constraint("DistanceX", -1, 1, 2, 2, Q("2.18 in")))
sketch3.addConstraint(Sketcher.Constraint("DistanceY", 1, 2, 3, 2, Q("0.125 in")))
sketch3.addConstraint(Sketcher.Constraint("DistanceX", 1, 2, 5, 2, Q("0.0625 in")))
sketch3.addConstraint(Sketcher.Constraint("DistanceY", -1, 1, 1, 2, 23.275))
sketch3.addConstraint(Sketcher.Constraint("DistanceX", -1, 1, 6, 2, 97.0595))
sketch3.addConstraint(Sketcher.Constraint("DistanceY", 1, 1, 1, 2, 1.171573))
pad3 = doc.addObject("PartDesign::Pad", "Pad002")
body.addObject(pad3)
pad3.Profile = sketch3
pad3.Length = 12.603189

# Sketch on YZ plane
sketch4 = doc.addObject("Sketcher::SketchObject", "Sketch003")
body.addObject(sketch4)
sketch4.AttachmentSupport = (doc.YZ_Plane, [""])
sketch4.MapMode = "FlatFace"
sketch4.AttachmentOffset = App.Placement(App.Vector(0, 0, 3.43 * 25.4), App.Rotation())
sketch4.addGeometry(Part.LineSegment(App.Vector(80.9, 23.3, 0), App.Vector(77.8, 23.3, 0)), False)
sketch4.addGeometry(Part.LineSegment(App.Vector(77.8, 23.3, 0), App.Vector(77.8, 22, 0)), False)
sketch4.addGeometry(Part.LineSegment(App.Vector(77.8, 22, 0), App.Vector(76.2, 23.6, 0)), False)
sketch4.addGeometry(Part.LineSegment(App.Vector(76.2, 23.6, 0), App.Vector(77.5, 26.4, 0)), False)
sketch4.addGeometry(Part.LineSegment(App.Vector(77.5, 26.4, 0), App.Vector(79.1, 26.4, 0)), False)
sketch4.addGeometry(Part.LineSegment(App.Vector(79.1, 26.4, 0), App.Vector(80.9, 23.3, 0)), False)
sketch4.addGeometry(Part.LineSegment(App.Vector(34.1, 23.3, 0), App.Vector(35.9, 26.4, 0)), False)
sketch4.addGeometry(Part.LineSegment(App.Vector(35.9, 26.4, 0), App.Vector(37.5, 26.4, 0)), False)
sketch4.addGeometry(Part.LineSegment(App.Vector(37.5, 26.4, 0), App.Vector(38.9, 23.6, 0)), False)
sketch4.addGeometry(Part.LineSegment(App.Vector(38.9, 23.6, 0), App.Vector(37.3, 22, 0)), False)
sketch4.addGeometry(Part.LineSegment(App.Vector(37.3, 22, 0), App.Vector(37.3, 23.3, 0)), False)
sketch4.addGeometry(Part.LineSegment(App.Vector(37.3, 23.3, 0), App.Vector(34.1, 23.3, 0)), False)
sketch4.addConstraint(Sketcher.Constraint("Coincident", 0, 2, 1, 1))
sketch4.addConstraint(Sketcher.Constraint("Coincident", 1, 2, 2, 1))
sketch4.addConstraint(Sketcher.Constraint("Coincident", 2, 2, 3, 1))
sketch4.addConstraint(Sketcher.Constraint("Coincident", 3, 2, 4, 1))
sketch4.addConstraint(Sketcher.Constraint("Coincident", 4, 2, 5, 1))
sketch4.addConstraint(Sketcher.Constraint("Coincident", 5, 2, 0, 1))
sketch4.addConstraint(Sketcher.Constraint("Coincident", 6, 2, 7, 1))
sketch4.addConstraint(Sketcher.Constraint("Coincident", 7, 2, 8, 1))
sketch4.addConstraint(Sketcher.Constraint("Coincident", 8, 2, 9, 1))
sketch4.addConstraint(Sketcher.Constraint("Coincident", 9, 2, 10, 1))
sketch4.addConstraint(Sketcher.Constraint("Coincident", 10, 2, 11, 1))
sketch4.addConstraint(Sketcher.Constraint("Coincident", 11, 2, 6, 1))
sketch4.addConstraint(Sketcher.Constraint("Horizontal", 0))
sketch4.addConstraint(Sketcher.Constraint("Vertical", 1))
sketch4.addConstraint(Sketcher.Constraint("Horizontal", 4))
sketch4.addConstraint(Sketcher.Constraint("Horizontal", 7))
sketch4.addConstraint(Sketcher.Constraint("Vertical", 10))
sketch4.addConstraint(Sketcher.Constraint("Horizontal", 11))
sketch4.addConstraint(Sketcher.Constraint("Perpendicular", 2, 9))
sketch4.addConstraint(Sketcher.Constraint("Horizontal", 4, 2, 6, 2))
sketch4.addConstraint(Sketcher.Constraint("Horizontal", 2, 2, 8, 2))
sketch4.addConstraint(Sketcher.Constraint("Horizontal", 1, 2, 9, 2))
sketch4.addConstraint(Sketcher.Constraint("Horizontal", 5, 2, 10, 2))
sketch4.addConstraint(Sketcher.Constraint("Equal", 4, 7))
sketch4.addConstraint(Sketcher.Constraint("Equal", 0, 11))
sketch4.addConstraint(Sketcher.Constraint("Equal", 5, 6))
sketch4.addConstraint(Sketcher.Constraint("Equal", 3, 8))
sketch4.addConstraint(Sketcher.Constraint("Angle", 5, Q("-60 deg")))
sketch4.addConstraint(Sketcher.Constraint("DistanceX", 0, 2, 0, 1, Q("0.125 in")))
sketch4.addConstraint(Sketcher.Constraint("DistanceX", 4, 1, 4, 2, Q("0.0625 in")))
sketch4.addConstraint(Sketcher.Constraint("DistanceX", 2, 2, 0, 2, Q("0.0625 in")))
sketch4.addConstraint(Sketcher.Constraint("DistanceY", 0, 2, 3, 2, Q("0.125 in")))
sketch4.addConstraint(Sketcher.Constraint("DistanceX", -1, 1, 0, 2, 77.765))
sketch4.addConstraint(Sketcher.Constraint("DistanceY", -1, 1, 0, 2, 23.275))
sketch4.addConstraint(Sketcher.Constraint("DistanceX", -1, 1, 8, 2, 38.8525))
sketch4.addConstraint(Sketcher.Constraint("Distance", 3, 3.17764))
pad4 = doc.addObject("PartDesign::Pad", "Pad003")
body.addObject(pad4)
pad4.Profile = sketch4
pad4.Length = Q("0.3 in")
doc.recompute()

fillet = doc.addObject("PartDesign::Fillet", "Fillet")
body.addObject(fillet)
fillet.Base = (pad4, edges_at(pad4, [(87.122, 101.406, 1.587), (131.775, 101.406, 1.587)]))
fillet.Radius = Q("0.25 in")
doc.recompute()

datumplane = doc.addObject("PartDesign::Plane", "DatumPlane")
body.addObject(datumplane)
datumplane.AttachmentSupport = (doc.YZ_Plane, [""])
datumplane.MapMode = "FlatFace"
datumplane.AttachmentOffset = App.Placement(App.Vector(0, 0, 4.309 * 25.4), App.Rotation())
mirrored = doc.addObject("PartDesign::Mirrored", "Mirrored")
body.addObject(mirrored)
mirrored.Originals = [pad2, pad3, pad4]
mirrored.MirrorPlane = (datumplane, [""])
body.Tip = mirrored
doc.recompute()

fillet2 = doc.addObject("PartDesign::Fillet", "Fillet001")
body.addObject(fillet2)
fillet2.Base = (mirrored, edges_at(mirrored, [
    (101.822, 57.323, 3.175),
    (90.932, 34.09, 3.175),
    (90.932, 80.94, 3.175),
    (117.075, 57.323, 3.175),
    (127.965, 34.09, 3.175),
    (127.965, 80.94, 3.175),
    (87.122, 63.306, 1.587),
    (94.742, 63.306, 1.587),
    (124.155, 63.306, 1.587),
    (124.155, 88.706, 1.587),
    (94.742, 88.706, 1.587),
]))
fillet2.Radius = Q("0.125 in")

doc.recompute()
